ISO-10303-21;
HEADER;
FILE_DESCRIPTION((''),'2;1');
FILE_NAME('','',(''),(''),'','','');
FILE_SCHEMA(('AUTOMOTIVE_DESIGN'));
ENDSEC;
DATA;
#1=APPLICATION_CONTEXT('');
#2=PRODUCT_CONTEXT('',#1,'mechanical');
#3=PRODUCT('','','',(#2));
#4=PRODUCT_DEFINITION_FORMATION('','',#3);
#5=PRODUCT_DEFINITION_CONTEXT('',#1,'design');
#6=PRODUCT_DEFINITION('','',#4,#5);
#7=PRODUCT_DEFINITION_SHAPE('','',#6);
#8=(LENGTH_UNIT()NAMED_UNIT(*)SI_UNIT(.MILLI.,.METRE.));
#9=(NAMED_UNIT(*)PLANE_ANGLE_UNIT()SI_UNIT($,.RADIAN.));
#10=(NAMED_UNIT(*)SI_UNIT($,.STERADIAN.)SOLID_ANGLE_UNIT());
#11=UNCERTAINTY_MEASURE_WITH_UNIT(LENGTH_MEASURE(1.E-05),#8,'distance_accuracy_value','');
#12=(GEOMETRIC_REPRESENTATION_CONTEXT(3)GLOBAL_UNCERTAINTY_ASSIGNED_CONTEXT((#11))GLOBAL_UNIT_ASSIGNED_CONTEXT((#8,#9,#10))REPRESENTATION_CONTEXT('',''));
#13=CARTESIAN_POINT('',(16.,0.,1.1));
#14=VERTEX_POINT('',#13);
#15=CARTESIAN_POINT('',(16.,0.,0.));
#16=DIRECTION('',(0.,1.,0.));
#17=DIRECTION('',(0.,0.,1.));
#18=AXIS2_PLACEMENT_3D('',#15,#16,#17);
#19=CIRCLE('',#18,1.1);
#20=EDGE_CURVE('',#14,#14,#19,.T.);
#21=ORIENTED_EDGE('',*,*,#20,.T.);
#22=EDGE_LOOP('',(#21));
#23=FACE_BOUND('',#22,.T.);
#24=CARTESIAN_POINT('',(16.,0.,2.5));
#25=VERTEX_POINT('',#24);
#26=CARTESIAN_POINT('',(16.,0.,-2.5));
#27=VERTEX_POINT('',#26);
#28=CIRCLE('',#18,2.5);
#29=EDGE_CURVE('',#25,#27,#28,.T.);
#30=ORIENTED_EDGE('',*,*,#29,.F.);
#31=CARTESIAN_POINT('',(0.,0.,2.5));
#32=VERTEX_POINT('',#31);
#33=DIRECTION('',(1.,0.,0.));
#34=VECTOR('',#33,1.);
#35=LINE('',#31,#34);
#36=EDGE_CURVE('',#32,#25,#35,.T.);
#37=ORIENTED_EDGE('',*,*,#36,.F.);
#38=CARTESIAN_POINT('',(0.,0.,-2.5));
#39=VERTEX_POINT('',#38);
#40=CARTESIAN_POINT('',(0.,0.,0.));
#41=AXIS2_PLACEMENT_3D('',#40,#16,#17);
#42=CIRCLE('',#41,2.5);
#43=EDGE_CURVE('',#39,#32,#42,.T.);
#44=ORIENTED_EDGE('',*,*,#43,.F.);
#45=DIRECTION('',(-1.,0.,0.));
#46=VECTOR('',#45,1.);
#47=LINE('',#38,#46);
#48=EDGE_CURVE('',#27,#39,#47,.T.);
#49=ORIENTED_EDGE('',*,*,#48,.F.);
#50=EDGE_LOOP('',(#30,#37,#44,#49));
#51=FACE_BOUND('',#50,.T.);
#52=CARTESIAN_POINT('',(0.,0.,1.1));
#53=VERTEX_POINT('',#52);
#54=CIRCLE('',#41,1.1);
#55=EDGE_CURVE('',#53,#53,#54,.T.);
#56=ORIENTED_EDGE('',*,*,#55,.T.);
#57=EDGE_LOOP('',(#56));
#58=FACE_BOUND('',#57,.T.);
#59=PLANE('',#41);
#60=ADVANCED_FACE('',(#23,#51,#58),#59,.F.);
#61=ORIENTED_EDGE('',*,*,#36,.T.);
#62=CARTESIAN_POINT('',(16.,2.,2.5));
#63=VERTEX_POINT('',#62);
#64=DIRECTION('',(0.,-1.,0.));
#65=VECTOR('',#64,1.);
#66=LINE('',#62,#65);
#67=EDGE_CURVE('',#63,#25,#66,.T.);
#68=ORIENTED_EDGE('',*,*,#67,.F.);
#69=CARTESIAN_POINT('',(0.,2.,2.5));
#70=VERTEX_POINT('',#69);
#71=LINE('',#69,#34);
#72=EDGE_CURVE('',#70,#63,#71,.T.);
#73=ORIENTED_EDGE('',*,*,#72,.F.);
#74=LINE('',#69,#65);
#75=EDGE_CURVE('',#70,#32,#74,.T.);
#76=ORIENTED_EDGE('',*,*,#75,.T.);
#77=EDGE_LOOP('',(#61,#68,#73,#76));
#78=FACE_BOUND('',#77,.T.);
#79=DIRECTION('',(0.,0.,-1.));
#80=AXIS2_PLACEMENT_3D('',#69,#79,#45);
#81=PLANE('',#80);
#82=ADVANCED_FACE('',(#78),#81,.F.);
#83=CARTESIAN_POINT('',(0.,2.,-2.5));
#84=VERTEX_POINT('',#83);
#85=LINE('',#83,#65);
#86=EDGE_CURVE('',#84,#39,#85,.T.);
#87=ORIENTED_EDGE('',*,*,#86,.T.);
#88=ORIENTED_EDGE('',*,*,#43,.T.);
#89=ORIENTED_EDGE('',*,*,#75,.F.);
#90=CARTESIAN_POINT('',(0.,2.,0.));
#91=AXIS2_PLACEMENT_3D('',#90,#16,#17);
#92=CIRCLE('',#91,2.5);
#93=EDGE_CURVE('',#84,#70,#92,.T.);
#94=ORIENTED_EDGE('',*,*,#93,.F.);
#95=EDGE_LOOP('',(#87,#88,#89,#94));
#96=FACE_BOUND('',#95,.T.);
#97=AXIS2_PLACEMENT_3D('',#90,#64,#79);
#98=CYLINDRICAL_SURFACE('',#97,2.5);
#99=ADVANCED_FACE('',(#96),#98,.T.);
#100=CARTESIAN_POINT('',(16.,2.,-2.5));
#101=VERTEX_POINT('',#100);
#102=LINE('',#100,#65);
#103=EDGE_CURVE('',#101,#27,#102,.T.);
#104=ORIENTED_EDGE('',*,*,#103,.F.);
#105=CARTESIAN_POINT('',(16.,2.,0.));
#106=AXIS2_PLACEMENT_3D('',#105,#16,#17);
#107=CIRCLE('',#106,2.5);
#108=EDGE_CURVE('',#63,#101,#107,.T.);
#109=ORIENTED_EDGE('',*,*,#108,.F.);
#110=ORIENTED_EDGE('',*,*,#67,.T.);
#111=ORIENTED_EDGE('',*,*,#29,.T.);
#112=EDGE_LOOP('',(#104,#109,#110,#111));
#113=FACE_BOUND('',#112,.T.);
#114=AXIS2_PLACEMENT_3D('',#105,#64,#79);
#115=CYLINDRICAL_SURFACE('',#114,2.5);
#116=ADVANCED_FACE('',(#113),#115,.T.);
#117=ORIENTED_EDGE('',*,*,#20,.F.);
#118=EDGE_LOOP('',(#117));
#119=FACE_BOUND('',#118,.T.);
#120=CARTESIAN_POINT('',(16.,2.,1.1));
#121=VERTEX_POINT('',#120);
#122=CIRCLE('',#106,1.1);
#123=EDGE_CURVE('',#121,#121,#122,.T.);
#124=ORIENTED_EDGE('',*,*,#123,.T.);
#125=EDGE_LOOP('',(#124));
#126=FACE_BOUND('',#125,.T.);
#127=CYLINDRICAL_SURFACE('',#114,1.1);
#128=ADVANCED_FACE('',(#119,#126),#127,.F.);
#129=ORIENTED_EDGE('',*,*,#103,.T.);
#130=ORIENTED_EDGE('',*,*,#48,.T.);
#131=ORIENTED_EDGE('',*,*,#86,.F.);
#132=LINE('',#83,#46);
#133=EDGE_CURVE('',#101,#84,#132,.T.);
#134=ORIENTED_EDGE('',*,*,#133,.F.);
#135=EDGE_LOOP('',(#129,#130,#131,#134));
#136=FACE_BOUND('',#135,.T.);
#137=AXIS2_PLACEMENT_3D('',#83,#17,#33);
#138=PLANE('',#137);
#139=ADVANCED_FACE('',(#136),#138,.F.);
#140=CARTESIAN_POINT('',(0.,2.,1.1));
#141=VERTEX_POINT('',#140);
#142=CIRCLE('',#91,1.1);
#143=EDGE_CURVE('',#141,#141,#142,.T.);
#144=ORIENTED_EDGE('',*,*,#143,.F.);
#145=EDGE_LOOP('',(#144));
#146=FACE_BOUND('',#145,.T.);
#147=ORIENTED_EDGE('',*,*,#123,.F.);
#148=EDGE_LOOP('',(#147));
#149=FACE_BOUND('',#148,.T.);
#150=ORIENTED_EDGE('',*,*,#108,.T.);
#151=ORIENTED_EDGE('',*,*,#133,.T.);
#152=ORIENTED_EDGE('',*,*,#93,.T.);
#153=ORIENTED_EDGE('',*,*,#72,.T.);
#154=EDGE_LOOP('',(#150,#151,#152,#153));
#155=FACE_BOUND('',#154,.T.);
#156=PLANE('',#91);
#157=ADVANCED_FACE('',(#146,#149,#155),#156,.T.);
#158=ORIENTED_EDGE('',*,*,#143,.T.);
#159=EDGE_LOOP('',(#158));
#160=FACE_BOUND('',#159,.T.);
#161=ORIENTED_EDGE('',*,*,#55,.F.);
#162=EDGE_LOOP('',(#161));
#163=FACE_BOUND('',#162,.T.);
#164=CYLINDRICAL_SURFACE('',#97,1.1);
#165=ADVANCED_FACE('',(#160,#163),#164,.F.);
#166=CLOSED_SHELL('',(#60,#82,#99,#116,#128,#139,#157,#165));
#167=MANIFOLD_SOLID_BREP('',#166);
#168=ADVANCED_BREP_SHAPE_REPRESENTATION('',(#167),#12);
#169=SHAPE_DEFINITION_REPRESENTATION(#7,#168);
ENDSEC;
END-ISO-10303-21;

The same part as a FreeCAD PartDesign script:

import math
import FreeCAD as App
import Part
import Sketcher

V = App.Vector
Q = App.Units.Quantity

doc = App.newDocument("Part")
params = doc.addObject("Spreadsheet::Sheet", "Params")
for row, (alias, value) in enumerate([
    ("sketch1_diameter", "2.2 mm"),
    ("sketch1_radius", "2.5 mm"),
    ("sketch1_width", "16 mm"),
    ("pad1_length", "2 mm"),
], start=1):
    params.set(f"A{row}", alias)
    params.set(f"B{row}", "=" + value)
    params.setAlias(f"B{row}", alias)

body = doc.addObject("PartDesign::Body", "Body")

# Sketch on XZ plane
sketch1 = body.newObject("Sketcher::SketchObject", "Sketch")
sketch1.AttachmentSupport = (doc.getObject("XZ_Plane"), [""])
sketch1.MapMode = "FlatFace"
sketch1.addGeometry([
    Part.LineSegment(V(16, -2.5, 0), V(0, -2.5, 0)),  # 0
    Part.ArcOfCircle(Part.Circle(V(0, 0, 0), V(0, 0, 1), 2.5), math.radians(90), math.radians(270)),  # 1
    Part.LineSegment(V(0, 2.5, 0), V(16, 2.5, 0)),  # 2
    Part.ArcOfCircle(Part.Circle(V(16, 0, 0), V(0, 0, 1), 2.5), math.radians(-90), math.radians(90)),  # 3
    Part.Circle(V(16, 0, 0), V(0, 0, 1), 1.1),  # 4
    Part.Circle(V(0, 0, 0), V(0, 0, 1), 1.1),  # 5
], False)
sketch1.addConstraint([
    Sketcher.Constraint("Tangent", 0, 2, 1, 2),
    Sketcher.Constraint("Tangent", 1, 1, 2, 1),
    Sketcher.Constraint("Tangent", 2, 2, 3, 2),
    Sketcher.Constraint("Tangent", 3, 1, 0, 1),
    Sketcher.Constraint("Horizontal", 0),
    Sketcher.Constraint("Horizontal", 2),
    Sketcher.Constraint("Coincident", 1, 3, -1, 1),
    Sketcher.Constraint("Coincident", 5, 3, -1, 1),
    Sketcher.Constraint("Coincident", 4, 3, 3, 3),
    Sketcher.Constraint("Equal", 4, 5),
    Sketcher.Constraint("Diameter", 4, Q("2.2 mm")),
    Sketcher.Constraint("Radius", 1, Q("2.5 mm")),
    Sketcher.Constraint("DistanceX", 0, 2, 0, 1, Q("16 mm")),
])
sketch1.setExpression("Constraints[10]", "Params.sketch1_diameter")
sketch1.setExpression("Constraints[11]", "Params.sketch1_radius")
sketch1.setExpression("Constraints[12]", "Params.sketch1_width")
pad1 = body.newObject("PartDesign::Pad", "Pad")
pad1.Profile = sketch1
pad1.setExpression("Length", "Params.pad1_length")
pad1.Reversed = True

doc.recompute()
